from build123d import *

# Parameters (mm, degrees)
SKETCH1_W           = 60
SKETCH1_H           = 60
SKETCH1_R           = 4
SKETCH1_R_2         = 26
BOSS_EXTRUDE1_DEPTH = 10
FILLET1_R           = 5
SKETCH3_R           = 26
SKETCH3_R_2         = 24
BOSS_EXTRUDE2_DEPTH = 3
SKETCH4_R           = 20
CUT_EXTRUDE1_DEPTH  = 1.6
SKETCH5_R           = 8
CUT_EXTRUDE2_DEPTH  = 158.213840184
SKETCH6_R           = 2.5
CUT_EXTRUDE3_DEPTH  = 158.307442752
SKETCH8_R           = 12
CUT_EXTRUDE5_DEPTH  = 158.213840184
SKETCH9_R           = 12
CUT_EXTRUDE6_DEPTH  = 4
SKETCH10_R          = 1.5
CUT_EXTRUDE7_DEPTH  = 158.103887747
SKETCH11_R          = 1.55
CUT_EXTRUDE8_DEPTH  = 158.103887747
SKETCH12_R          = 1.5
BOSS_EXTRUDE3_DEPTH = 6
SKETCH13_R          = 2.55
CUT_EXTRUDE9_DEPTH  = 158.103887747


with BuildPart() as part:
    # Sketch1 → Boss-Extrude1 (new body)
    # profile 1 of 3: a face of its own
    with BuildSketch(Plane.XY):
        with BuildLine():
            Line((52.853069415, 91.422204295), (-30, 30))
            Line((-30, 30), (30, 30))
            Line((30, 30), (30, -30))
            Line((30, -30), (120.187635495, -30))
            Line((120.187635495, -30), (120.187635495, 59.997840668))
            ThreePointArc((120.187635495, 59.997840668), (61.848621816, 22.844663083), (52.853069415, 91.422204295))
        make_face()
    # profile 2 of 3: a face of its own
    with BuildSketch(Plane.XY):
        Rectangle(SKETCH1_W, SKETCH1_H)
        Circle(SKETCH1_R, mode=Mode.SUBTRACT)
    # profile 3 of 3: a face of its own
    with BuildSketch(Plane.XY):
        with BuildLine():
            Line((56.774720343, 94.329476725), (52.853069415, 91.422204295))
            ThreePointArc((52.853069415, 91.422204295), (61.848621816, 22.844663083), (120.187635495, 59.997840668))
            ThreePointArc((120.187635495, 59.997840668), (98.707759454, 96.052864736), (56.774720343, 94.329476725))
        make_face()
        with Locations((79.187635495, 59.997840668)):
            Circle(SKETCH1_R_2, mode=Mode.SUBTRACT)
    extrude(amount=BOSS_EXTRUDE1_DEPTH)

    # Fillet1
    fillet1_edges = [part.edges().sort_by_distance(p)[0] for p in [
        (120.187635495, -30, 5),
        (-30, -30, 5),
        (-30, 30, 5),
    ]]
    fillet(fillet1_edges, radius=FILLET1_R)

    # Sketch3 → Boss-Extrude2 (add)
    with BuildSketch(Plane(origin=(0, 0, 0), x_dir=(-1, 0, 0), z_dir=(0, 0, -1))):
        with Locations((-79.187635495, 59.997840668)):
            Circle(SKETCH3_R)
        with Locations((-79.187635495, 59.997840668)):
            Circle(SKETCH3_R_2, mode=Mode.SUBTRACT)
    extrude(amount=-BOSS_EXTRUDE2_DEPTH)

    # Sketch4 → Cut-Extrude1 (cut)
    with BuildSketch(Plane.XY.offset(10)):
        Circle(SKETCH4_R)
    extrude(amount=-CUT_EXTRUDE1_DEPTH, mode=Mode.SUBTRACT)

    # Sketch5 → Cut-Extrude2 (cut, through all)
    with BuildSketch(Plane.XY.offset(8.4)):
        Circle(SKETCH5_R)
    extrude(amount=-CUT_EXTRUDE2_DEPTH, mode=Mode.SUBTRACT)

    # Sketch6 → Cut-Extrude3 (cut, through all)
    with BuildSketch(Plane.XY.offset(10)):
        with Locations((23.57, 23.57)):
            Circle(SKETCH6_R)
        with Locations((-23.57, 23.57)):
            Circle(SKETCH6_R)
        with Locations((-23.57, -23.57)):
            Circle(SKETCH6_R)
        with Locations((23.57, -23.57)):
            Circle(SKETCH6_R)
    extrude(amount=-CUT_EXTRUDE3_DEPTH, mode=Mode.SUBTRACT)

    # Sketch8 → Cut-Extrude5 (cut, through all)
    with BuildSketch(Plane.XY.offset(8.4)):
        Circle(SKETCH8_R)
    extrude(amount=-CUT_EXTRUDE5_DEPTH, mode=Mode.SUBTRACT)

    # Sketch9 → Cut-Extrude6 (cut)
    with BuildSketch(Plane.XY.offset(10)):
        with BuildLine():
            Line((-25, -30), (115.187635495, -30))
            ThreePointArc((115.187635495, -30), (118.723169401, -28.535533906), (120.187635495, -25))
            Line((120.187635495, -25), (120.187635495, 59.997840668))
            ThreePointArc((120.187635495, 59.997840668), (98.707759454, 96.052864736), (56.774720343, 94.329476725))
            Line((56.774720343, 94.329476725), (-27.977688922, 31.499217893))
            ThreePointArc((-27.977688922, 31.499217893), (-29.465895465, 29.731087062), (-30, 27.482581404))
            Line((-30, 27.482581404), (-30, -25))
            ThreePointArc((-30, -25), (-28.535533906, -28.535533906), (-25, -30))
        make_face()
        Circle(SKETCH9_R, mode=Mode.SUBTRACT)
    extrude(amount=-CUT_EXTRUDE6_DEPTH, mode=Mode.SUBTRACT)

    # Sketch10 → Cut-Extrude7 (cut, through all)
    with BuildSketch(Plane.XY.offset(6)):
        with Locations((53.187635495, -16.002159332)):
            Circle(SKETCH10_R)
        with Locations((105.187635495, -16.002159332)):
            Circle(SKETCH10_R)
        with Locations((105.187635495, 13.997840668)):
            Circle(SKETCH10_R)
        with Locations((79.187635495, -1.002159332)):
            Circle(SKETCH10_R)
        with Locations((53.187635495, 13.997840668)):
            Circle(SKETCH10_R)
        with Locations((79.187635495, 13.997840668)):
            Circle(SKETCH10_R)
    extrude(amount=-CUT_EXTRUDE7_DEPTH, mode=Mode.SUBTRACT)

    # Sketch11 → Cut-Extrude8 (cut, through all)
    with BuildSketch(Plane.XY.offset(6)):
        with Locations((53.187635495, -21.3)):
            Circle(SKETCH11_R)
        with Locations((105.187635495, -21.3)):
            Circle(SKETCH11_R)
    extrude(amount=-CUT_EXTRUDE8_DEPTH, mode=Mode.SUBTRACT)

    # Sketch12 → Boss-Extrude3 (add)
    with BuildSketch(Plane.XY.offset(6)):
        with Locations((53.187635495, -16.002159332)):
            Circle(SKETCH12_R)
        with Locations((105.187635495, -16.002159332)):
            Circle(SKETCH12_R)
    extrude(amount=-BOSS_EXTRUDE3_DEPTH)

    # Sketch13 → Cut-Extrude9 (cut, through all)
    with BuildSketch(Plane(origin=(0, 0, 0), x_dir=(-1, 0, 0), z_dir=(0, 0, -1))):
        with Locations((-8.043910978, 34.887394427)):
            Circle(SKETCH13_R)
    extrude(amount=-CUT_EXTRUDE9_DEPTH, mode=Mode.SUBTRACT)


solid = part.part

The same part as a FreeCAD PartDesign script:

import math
import FreeCAD as App
import Part
import Sketcher


def edges_at(feature, points):
    """Names of the edges that pass closest to the given points."""
    edges = feature.Shape.Edges
    near = lambda p: min(range(len(edges)), key=lambda i: edges[i].distToShape(Part.Vertex(*p))[0])
    return sorted({f"Edge{near(p) + 1}" for p in points})

doc = App.newDocument("Part")
body = doc.addObject("PartDesign::Body", "Body")

# Sketch on XY plane
sketch1 = body.newObject("Sketcher::SketchObject", "Sketch")
sketch1.AttachmentSupport = (doc.getObject("XY_Plane"), [""])
sketch1.MapMode = "FlatFace"
sketch1.addGeometry(Part.LineSegment(App.Vector(52.9, 91.4, 0), App.Vector(-30, 30, 0)), False)
sketch1.addGeometry(Part.LineSegment(App.Vector(-30, 30, 0), App.Vector(-30, -30, 0)), False)
sketch1.addGeometry(Part.LineSegment(App.Vector(-30, -30, 0), App.Vector(120.2, -30, 0)), False)
sketch1.addGeometry(Part.LineSegment(App.Vector(120.2, -30, 0), App.Vector(120.2, 60, 0)), False)
sketch1.addGeometry(Part.ArcOfCircle(Part.Circle(App.Vector(79.2, 60, 0), App.Vector(0, 0, 1), 41), math.radians(0), math.radians(123)), False)
sketch1.addGeometry(Part.LineSegment(App.Vector(56.8, 94.3, 0), App.Vector(52.9, 91.4, 0)), False)
sketch1.addGeometry(Part.Circle(App.Vector(0, 0, 0), App.Vector(0, 0, 1), 4), False)
sketch1.addGeometry(Part.Circle(App.Vector(79.2, 60, 0), App.Vector(0, 0, 1), 26), False)
sketch1.addConstraint(Sketcher.Constraint("Coincident", 0, 2, 1, 1))
sketch1.addConstraint(Sketcher.Constraint("Coincident", 1, 2, 2, 1))
sketch1.addConstraint(Sketcher.Constraint("Coincident", 2, 2, 3, 1))
sketch1.addConstraint(Sketcher.Constraint("Tangent", 3, 2, 4, 1))
sketch1.addConstraint(Sketcher.Constraint("Coincident", 4, 2, 5, 1))
sketch1.addConstraint(Sketcher.Constraint("Coincident", 5, 2, 0, 1))
sketch1.addConstraint(Sketcher.Constraint("Vertical", 1))
sketch1.addConstraint(Sketcher.Constraint("Horizontal", 2))
sketch1.addConstraint(Sketcher.Constraint("Vertical", 3))
sketch1.addConstraint(Sketcher.Constraint("Coincident", 6, 3, -1, 1))
sketch1.addConstraint(Sketcher.Constraint("Coincident", 7, 3, 4, 3))
sketch1.addConstraint(Sketcher.Constraint("Parallel", 0, 5))
sketch1.addConstraint(Sketcher.Constraint("Diameter", 6, 8.0))
sketch1.addConstraint(Sketcher.Constraint("Diameter", 7, 52.0))
sketch1.addConstraint(Sketcher.Constraint("Radius", 4, 41.0))
sketch1.addConstraint(Sketcher.Constraint("DistanceY", 1, 2, 1, 1, 60.0))
sketch1.addConstraint(Sketcher.Constraint("DistanceX", 0, 2, -1, 1, 30.0))
sketch1.addConstraint(Sketcher.Constraint("DistanceY", -1, 1, 0, 2, 30.0))
sketch1.addConstraint(Sketcher.Constraint("DistanceY", 3, 1, 3, 2, 89.997841))
sketch1.addConstraint(Sketcher.Constraint("Distance", 5, 4.88176))
sketch1.addConstraint(Sketcher.Constraint("DistanceX", 2, 1, 2, 2, 150.187635))
sketch1.addConstraint(Sketcher.Constraint("DistanceX", -1, 1, 4, 2, 56.77472))
pad1 = body.newObject("PartDesign::Pad", "Pad")
pad1.Profile = sketch1
pad1.Length = 10
doc.recompute()

fillet = body.newObject("PartDesign::Fillet", "Fillet")
fillet.Base = (pad1, edges_at(pad1, [(120.188, -30, 5), (-30, -30, 5), (-30, 30, 5)]))
fillet.Radius = 5

# Sketch on XY plane
sketch2 = body.newObject("Sketcher::SketchObject", "Sketch001")
sketch2.AttachmentSupport = (doc.getObject("XY_Plane"), [""])
sketch2.MapMode = "FlatFace"
sketch2.addGeometry(Part.Circle(App.Vector(79, 60, 0), App.Vector(0, 0, 1), 26), False)
sketch2.addGeometry(Part.Circle(App.Vector(79, 60, 0), App.Vector(0, 0, 1), 24), False)
sketch2.addConstraint(Sketcher.Constraint("Coincident", 1, 3, 0, 3))
sketch2.addConstraint(Sketcher.Constraint("Diameter", 0, 52.0))
sketch2.addConstraint(Sketcher.Constraint("Diameter", 1, 48.0))
sketch2.addConstraint(Sketcher.Constraint("DistanceY", -1, 1, 0, 3, 59.997841))
sketch2.addConstraint(Sketcher.Constraint("DistanceX", -1, 1, 0, 3, 79.187635))
pad2 = body.newObject("PartDesign::Pad", "Pad001")
pad2.Profile = sketch2
pad2.Length = 3

# Sketch on XY plane
sketch3 = body.newObject("Sketcher::SketchObject", "Sketch002")
sketch3.AttachmentSupport = (doc.getObject("XY_Plane"), [""])
sketch3.MapMode = "FlatFace"
sketch3.AttachmentOffset = App.Placement(App.Vector(0, 0, 10), App.Rotation())
sketch3.addGeometry(Part.Circle(App.Vector(0, 0, 0), App.Vector(0, 0, 1), 20), False)
sketch3.addConstraint(Sketcher.Constraint("Coincident", 0, 3, -1, 1))
sketch3.addConstraint(Sketcher.Constraint("Diameter", 0, 40.0))
pocket1 = body.newObject("PartDesign::Pocket", "Pocket")
pocket1.Profile = sketch3
pocket1.Length = 1.6

# Sketch on XY plane
sketch4 = body.newObject("Sketcher::SketchObject", "Sketch003")
sketch4.AttachmentSupport = (doc.getObject("XY_Plane"), [""])
sketch4.MapMode = "FlatFace"
sketch4.AttachmentOffset = App.Placement(App.Vector(0, 0, 8.4), App.Rotation())
sketch4.addGeometry(Part.Circle(App.Vector(0, 0, 0), App.Vector(0, 0, 1), 8), False)
sketch4.addConstraint(Sketcher.Constraint("Coincident", 0, 3, -1, 1))
sketch4.addConstraint(Sketcher.Constraint("Diameter", 0, 16.0))
pocket2 = body.newObject("PartDesign::Pocket", "Pocket001")
pocket2.Profile = sketch4
pocket2.Type = "ThroughAll"

# Sketch on XY plane
sketch5 = body.newObject("Sketcher::SketchObject", "Sketch004")
sketch5.AttachmentSupport = (doc.getObject("XY_Plane"), [""])
sketch5.MapMode = "FlatFace"
sketch5.AttachmentOffset = App.Placement(App.Vector(0, 0, 10), App.Rotation())
sketch5.addGeometry(Part.Circle(App.Vector(23.6, 23.6, 0), App.Vector(0, 0, 1), 2.5), False)
sketch5.addGeometry(Part.Circle(App.Vector(-23.6, 23.6, 0), App.Vector(0, 0, 1), 2.5), False)
sketch5.addGeometry(Part.Circle(App.Vector(-23.6, -23.6, 0), App.Vector(0, 0, 1), 2.5), False)
sketch5.addGeometry(Part.Circle(App.Vector(23.6, -23.6, 0), App.Vector(0, 0, 1), 2.5), False)
sketch5.addConstraint(Sketcher.Constraint("Equal", 0, 1))
sketch5.addConstraint(Sketcher.Constraint("Equal", 1, 2))
sketch5.addConstraint(Sketcher.Constraint("Equal", 2, 3))
sketch5.addConstraint(Sketcher.Constraint("Symmetric", 0, 3, 2, 3, -1, 1))
sketch5.addConstraint(Sketcher.Constraint("Symmetric", 1, 3, 3, 3, -1, 1))
sketch5.addConstraint(Sketcher.Constraint("Symmetric", 0, 3, 1, 3, -2))
sketch5.addConstraint(Sketcher.Constraint("Diameter", 0, 5.0))
sketch5.addConstraint(Sketcher.Constraint("DistanceX", -1, 1, 0, 3, 23.57))
sketch5.addConstraint(Sketcher.Constraint("DistanceY", -1, 1, 0, 3, 23.57))
pocket3 = body.newObject("PartDesign::Pocket", "Pocket002")
pocket3.Profile = sketch5
pocket3.Type = "ThroughAll"

# Sketch on XY plane
sketch6 = body.newObject("Sketcher::SketchObject", "Sketch005")
sketch6.AttachmentSupport = (doc.getObject("XY_Plane"), [""])
sketch6.MapMode = "FlatFace"
sketch6.AttachmentOffset = App.Placement(App.Vector(0, 0, 8.4), App.Rotation())
sketch6.addGeometry(Part.Circle(App.Vector(0, 0, 0), App.Vector(0, 0, 1), 12), False)
sketch6.addConstraint(Sketcher.Constraint("Coincident", 0, 3, -1, 1))
sketch6.addConstraint(Sketcher.Constraint("Diameter", 0, 24.0))
pocket4 = body.newObject("PartDesign::Pocket", "Pocket003")
pocket4.Profile = sketch6
pocket4.Type = "ThroughAll"

# Sketch on XY plane
sketch7 = body.newObject("Sketcher::SketchObject", "Sketch006")
sketch7.AttachmentSupport = (doc.getObject("XY_Plane"), [""])
sketch7.MapMode = "FlatFace"
sketch7.AttachmentOffset = App.Placement(App.Vector(0, 0, 10), App.Rotation())
sketch7.addGeometry(Part.LineSegment(App.Vector(-25, -30, 0), App.Vector(115.2, -30, 0)), False)
sketch7.addGeometry(Part.ArcOfCircle(Part.Circle(App.Vector(115.2, -25, 0), App.Vector(0, 0, 1), 5), math.radians(-90), math.radians(0)), False)
sketch7.addGeometry(Part.LineSegment(App.Vector(120.2, -25, 0), App.Vector(120.2, 60, 0)), False)
sketch7.addGeometry(Part.ArcOfCircle(Part.Circle(App.Vector(79.2, 60, 0), App.Vector(0, 0, 1), 41), math.radians(0), math.radians(123)), False)
sketch7.addGeometry(Part.LineSegment(App.Vector(56.8, 94.3, 0), App.Vector(-28, 31.5, 0)), False)
sketch7.addGeometry(Part.ArcOfCircle(Part.Circle(App.Vector(-25, 27.5, 0), App.Vector(0, 0, 1), 5), math.radians(127), math.radians(180)), False)
sketch7.addGeometry(Part.LineSegment(App.Vector(-30, 27.5, 0), App.Vector(-30, -25, 0)), False)
sketch7.addGeometry(Part.ArcOfCircle(Part.Circle(App.Vector(-25, -25, 0), App.Vector(0, 0, 1), 5), math.radians(180), math.radians(270)), False)
sketch7.addGeometry(Part.Circle(App.Vector(0, 0, 0), App.Vector(0, 0, 1), 12), False)
sketch7.addConstraint(Sketcher.Constraint("Tangent", 0, 2, 1, 1))
sketch7.addConstraint(Sketcher.Constraint("Tangent", 1, 2, 2, 1))
sketch7.addConstraint(Sketcher.Constraint("Tangent", 2, 2, 3, 1))
sketch7.addConstraint(Sketcher.Constraint("Coincident", 3, 2, 4, 1))
sketch7.addConstraint(Sketcher.Constraint("Tangent", 4, 2, 5, 1))
sketch7.addConstraint(Sketcher.Constraint("Tangent", 5, 2, 6, 1))
sketch7.addConstraint(Sketcher.Constraint("Tangent", 6, 2, 7, 1))
sketch7.addConstraint(Sketcher.Constraint("Tangent", 7, 2, 0, 1))
sketch7.addConstraint(Sketcher.Constraint("Horizontal", 0))
sketch7.addConstraint(Sketcher.Constraint("Vertical", 2))
sketch7.addConstraint(Sketcher.Constraint("Vertical", 6))
sketch7.addConstraint(Sketcher.Constraint("Coincident", 8, 3, -1, 1))
sketch7.addConstraint(Sketcher.Constraint("Equal", 1, 5))
sketch7.addConstraint(Sketcher.Constraint("Equal", 5, 7))
sketch7.addConstraint(Sketcher.Constraint("Diameter", 8, 24.0))
sketch7.addConstraint(Sketcher.Constraint("Radius", 1, 5.0))
sketch7.addConstraint(Sketcher.Constraint("Radius", 3, 41.0))
sketch7.addConstraint(Sketcher.Constraint("DistanceY", 1, 3, -1, 1, 25.0))
sketch7.addConstraint(Sketcher.Constraint("DistanceX", 5, 3, -1, 1, 25.0))
sketch7.addConstraint(Sketcher.Constraint("DistanceY", 2, 1, 2, 2, 84.997841))
sketch7.addConstraint(Sketcher.Constraint("DistanceY", 6, 2, 6, 1, 52.482581))
sketch7.addConstraint(Sketcher.Constraint("DistanceX", 0, 1, 0, 2, 140.187635))
sketch7.addConstraint(Sketcher.Constraint("DistanceX", -1, 1, 3, 2, 56.77472))
pocket5 = body.newObject("PartDesign::Pocket", "Pocket004")
pocket5.Profile = sketch7
pocket5.Length = 4

# Sketch on XY plane
sketch8 = body.newObject("Sketcher::SketchObject", "Sketch007")
sketch8.AttachmentSupport = (doc.getObject("XY_Plane"), [""])
sketch8.MapMode = "FlatFace"
sketch8.AttachmentOffset = App.Placement(App.Vector(0, 0, 6), App.Rotation())
sketch8.addGeometry(Part.Circle(App.Vector(53.2, -16, 0), App.Vector(0, 0, 1), 1.5), False)
sketch8.addGeometry(Part.Circle(App.Vector(105.2, -16, 0), App.Vector(0, 0, 1), 1.5), False)
sketch8.addGeometry(Part.Circle(App.Vector(105.2, 14, 0), App.Vector(0, 0, 1), 1.5), False)
sketch8.addGeometry(Part.Circle(App.Vector(79.2, -1, 0), App.Vector(0, 0, 1), 1.5), False)
sketch8.addGeometry(Part.Circle(App.Vector(53.2, 14, 0), App.Vector(0, 0, 1), 1.5), False)
sketch8.addGeometry(Part.Circle(App.Vector(79.2, 14, 0), App.Vector(0, 0, 1), 1.5), False)
sketch8.addConstraint(Sketcher.Constraint("Equal", 0, 1))
sketch8.addConstraint(Sketcher.Constraint("Equal", 1, 2))
sketch8.addConstraint(Sketcher.Constraint("Equal", 2, 3))
sketch8.addConstraint(Sketcher.Constraint("Equal", 3, 4))
sketch8.addConstraint(Sketcher.Constraint("Equal", 4, 5))
sketch8.addConstraint(Sketcher.Constraint("Horizontal", 0, 3, 1, 3))
sketch8.addConstraint(Sketcher.Constraint("Horizontal", 2, 3, 4, 3))
sketch8.addConstraint(Sketcher.Constraint("Horizontal", 4, 3, 5, 3))
sketch8.addConstraint(Sketcher.Constraint("Vertical", 1, 3, 2, 3))
sketch8.addConstraint(Sketcher.Constraint("Vertical", 0, 3, 4, 3))
sketch8.addConstraint(Sketcher.Constraint("Vertical", 3, 3, 5, 3))
sketch8.addConstraint(Sketcher.Constraint("Diameter", 0, 3.0))
sketch8.addConstraint(Sketcher.Constraint("DistanceX", 0, 3, 1, 3, 52.0))
sketch8.addConstraint(Sketcher.Constraint("DistanceY", 1, 3, 2, 3, 30.0))
sketch8.addConstraint(Sketcher.Constraint("DistanceX", 0, 3, 3, 3, 26.0))
sketch8.addConstraint(Sketcher.Constraint("DistanceY", 0, 3, 3, 3, 15.0))
sketch8.addConstraint(Sketcher.Constraint("DistanceY", 0, 3, -1, 1, 16.002159))
sketch8.addConstraint(Sketcher.Constraint("DistanceX", -1, 1, 0, 3, 53.187635))
pocket6 = body.newObject("PartDesign::Pocket", "Pocket005")
pocket6.Profile = sketch8
pocket6.Type = "ThroughAll"

# Sketch on XY plane
sketch9 = body.newObject("Sketcher::SketchObject", "Sketch008")
sketch9.AttachmentSupport = (doc.getObject("XY_Plane"), [""])
sketch9.MapMode = "FlatFace"
sketch9.AttachmentOffset = App.Placement(App.Vector(0, 0, 6), App.Rotation())
sketch9.addGeometry(Part.Circle(App.Vector(53.2, -21.3, 0), App.Vector(0, 0, 1), 1.6), False)
sketch9.addGeometry(Part.Circle(App.Vector(105.2, -21.3, 0), App.Vector(0, 0, 1), 1.6), False)
sketch9.addConstraint(Sketcher.Constraint("Equal", 0, 1))
sketch9.addConstraint(Sketcher.Constraint("Horizontal", 0, 3, 1, 3))
sketch9.addConstraint(Sketcher.Constraint("Diameter", 0, 3.1))
sketch9.addConstraint(Sketcher.Constraint("DistanceX", 0, 3, 1, 3, 52.0))
sketch9.addConstraint(Sketcher.Constraint("DistanceY", 0, 3, -1, 1, 21.3))
sketch9.addConstraint(Sketcher.Constraint("DistanceX", -1, 1, 0, 3, 53.187635))
pocket7 = body.newObject("PartDesign::Pocket", "Pocket006")
pocket7.Profile = sketch9
pocket7.Type = "ThroughAll"

# Sketch on XY plane
sketch10 = body.newObject("Sketcher::SketchObject", "Sketch009")
sketch10.AttachmentSupport = (doc.getObject("XY_Plane"), [""])
sketch10.MapMode = "FlatFace"
sketch10.AttachmentOffset = App.Placement(App.Vector(0, 0, 6), App.Rotation())
sketch10.addGeometry(Part.Circle(App.Vector(53.2, -16, 0), App.Vector(0, 0, 1), 1.5), False)
sketch10.addGeometry(Part.Circle(App.Vector(105.2, -16, 0), App.Vector(0, 0, 1), 1.5), False)
sketch10.addConstraint(Sketcher.Constraint("Equal", 0, 1))
sketch10.addConstraint(Sketcher.Constraint("Horizontal", 0, 3, 1, 3))
sketch10.addConstraint(Sketcher.Constraint("Diameter", 0, 3.0))
sketch10.addConstraint(Sketcher.Constraint("DistanceX", 0, 3, 1, 3, 52.0))
sketch10.addConstraint(Sketcher.Constraint("DistanceY", 0, 3, -1, 1, 16.002159))
sketch10.addConstraint(Sketcher.Constraint("DistanceX", -1, 1, 0, 3, 53.187635))
pad3 = body.newObject("PartDesign::Pad", "Pad002")
pad3.Profile = sketch10
pad3.Length = 6
pad3.Reversed = True

# Sketch on XY plane
sketch11 = body.newObject("Sketcher::SketchObject", "Sketch010")
sketch11.AttachmentSupport = (doc.getObject("XY_Plane"), [""])
sketch11.MapMode = "FlatFace"
sketch11.addGeometry(Part.Circle(App.Vector(8, 34.9, 0), App.Vector(0, 0, 1), 2.5), False)
sketch11.addConstraint(Sketcher.Constraint("Diameter", 0, 5.1))
sketch11.addConstraint(Sketcher.Constraint("DistanceX", -1, 1, 0, 3, 8.043911))
sketch11.addConstraint(Sketcher.Constraint("DistanceY", -1, 1, 0, 3, 34.887394))
pocket8 = body.newObject("PartDesign::Pocket", "Pocket007")
pocket8.Profile = sketch11
pocket8.Type = "ThroughAll"
pocket8.Reversed = True

doc.recompute()
